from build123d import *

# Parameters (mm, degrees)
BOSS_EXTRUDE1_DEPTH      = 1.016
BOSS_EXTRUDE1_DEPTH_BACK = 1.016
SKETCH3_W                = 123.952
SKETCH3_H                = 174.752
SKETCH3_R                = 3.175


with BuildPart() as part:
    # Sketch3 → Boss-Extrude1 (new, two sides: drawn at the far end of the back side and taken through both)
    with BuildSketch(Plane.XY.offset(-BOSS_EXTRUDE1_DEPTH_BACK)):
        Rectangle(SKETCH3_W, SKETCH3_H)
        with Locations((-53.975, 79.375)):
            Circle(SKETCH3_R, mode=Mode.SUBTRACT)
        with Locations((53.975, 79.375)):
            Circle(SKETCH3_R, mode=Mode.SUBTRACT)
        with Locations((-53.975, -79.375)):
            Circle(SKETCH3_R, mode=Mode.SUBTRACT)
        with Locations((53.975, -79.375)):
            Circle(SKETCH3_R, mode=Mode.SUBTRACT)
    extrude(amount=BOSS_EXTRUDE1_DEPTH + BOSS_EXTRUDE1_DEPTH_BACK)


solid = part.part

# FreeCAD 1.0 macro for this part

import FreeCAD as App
import Part
import Sketcher
Q = App.Units.Quantity

doc = App.newDocument("Part")
body = doc.addObject("PartDesign::Body", "Body")

# Sketch on XY plane
sketch1 = body.newObject("Sketcher::SketchObject", "Sketch")
sketch1.AttachmentSupport = (doc.getObject("XY_Plane"), [""])
sketch1.MapMode = "FlatFace"
sketch1.addGeometry([
    Part.LineSegment(App.Vector(-62, 87.4, 0), App.Vector(-62, -87.4, 0)),  # 0
    Part.LineSegment(App.Vector(-62, -87.4, 0), App.Vector(62, -87.4, 0)),  # 1
    Part.LineSegment(App.Vector(62, -87.4, 0), App.Vector(62, 87.4, 0)),  # 2
    Part.LineSegment(App.Vector(62, 87.4, 0), App.Vector(-62, 87.4, 0)),  # 3
    Part.Circle(App.Vector(-54, -79.4, 0), App.Vector(0, 0, 1), 3.2),  # 4
    Part.Circle(App.Vector(54, -79.4, 0), App.Vector(0, 0, 1), 3.2),  # 5
    Part.Circle(App.Vector(-54, 79.4, 0), App.Vector(0, 0, 1), 3.2),  # 6
    Part.Circle(App.Vector(54, 79.4, 0), App.Vector(0, 0, 1), 3.2),  # 7
], False)
sketch1.addConstraint([
    Sketcher.Constraint("Coincident", 0, 2, 1, 1),
    Sketcher.Constraint("Coincident", 1, 2, 2, 1),
    Sketcher.Constraint("Coincident", 2, 2, 3, 1),
    Sketcher.Constraint("Coincident", 3, 2, 0, 1),
    Sketcher.Constraint("Vertical", 0),
    Sketcher.Constraint("Horizontal", 1),
    Sketcher.Constraint("Vertical", 2),
    Sketcher.Constraint("Horizontal", 3),
    Sketcher.Constraint("Equal", 4, 5),
    Sketcher.Constraint("Equal", 5, 6),
    Sketcher.Constraint("Equal", 6, 7),
    Sketcher.Constraint("Symmetric", 5, 3, 6, 3, -1, 1),
    Sketcher.Constraint("Symmetric", 4, 3, 7, 3, -1, 1),
    Sketcher.Constraint("Symmetric", 0, 2, 2, 2, -1, 1),
    Sketcher.Constraint("Symmetric", 4, 3, 5, 3, -2),
    Sketcher.Constraint("Diameter", 4, Q("0.25 in")),
    Sketcher.Constraint("DistanceX", 1, 1, 1, 2, Q("4.88 in")),
    Sketcher.Constraint("DistanceY", 0, 2, 0, 1, Q("6.88 in")),
    Sketcher.Constraint("DistanceX", 4, 3, 5, 3, Q("4.25 in")),
    Sketcher.Constraint("DistanceY", 4, 3, 6, 3, Q("6.25 in")),
])
pad1 = body.newObject("PartDesign::Pad", "Pad")
pad1.Profile = sketch1
pad1.Type = "TwoLengths"
pad1.Length = Q("0.04 in")
pad1.Length2 = Q("0.04 in")

doc.recompute()
